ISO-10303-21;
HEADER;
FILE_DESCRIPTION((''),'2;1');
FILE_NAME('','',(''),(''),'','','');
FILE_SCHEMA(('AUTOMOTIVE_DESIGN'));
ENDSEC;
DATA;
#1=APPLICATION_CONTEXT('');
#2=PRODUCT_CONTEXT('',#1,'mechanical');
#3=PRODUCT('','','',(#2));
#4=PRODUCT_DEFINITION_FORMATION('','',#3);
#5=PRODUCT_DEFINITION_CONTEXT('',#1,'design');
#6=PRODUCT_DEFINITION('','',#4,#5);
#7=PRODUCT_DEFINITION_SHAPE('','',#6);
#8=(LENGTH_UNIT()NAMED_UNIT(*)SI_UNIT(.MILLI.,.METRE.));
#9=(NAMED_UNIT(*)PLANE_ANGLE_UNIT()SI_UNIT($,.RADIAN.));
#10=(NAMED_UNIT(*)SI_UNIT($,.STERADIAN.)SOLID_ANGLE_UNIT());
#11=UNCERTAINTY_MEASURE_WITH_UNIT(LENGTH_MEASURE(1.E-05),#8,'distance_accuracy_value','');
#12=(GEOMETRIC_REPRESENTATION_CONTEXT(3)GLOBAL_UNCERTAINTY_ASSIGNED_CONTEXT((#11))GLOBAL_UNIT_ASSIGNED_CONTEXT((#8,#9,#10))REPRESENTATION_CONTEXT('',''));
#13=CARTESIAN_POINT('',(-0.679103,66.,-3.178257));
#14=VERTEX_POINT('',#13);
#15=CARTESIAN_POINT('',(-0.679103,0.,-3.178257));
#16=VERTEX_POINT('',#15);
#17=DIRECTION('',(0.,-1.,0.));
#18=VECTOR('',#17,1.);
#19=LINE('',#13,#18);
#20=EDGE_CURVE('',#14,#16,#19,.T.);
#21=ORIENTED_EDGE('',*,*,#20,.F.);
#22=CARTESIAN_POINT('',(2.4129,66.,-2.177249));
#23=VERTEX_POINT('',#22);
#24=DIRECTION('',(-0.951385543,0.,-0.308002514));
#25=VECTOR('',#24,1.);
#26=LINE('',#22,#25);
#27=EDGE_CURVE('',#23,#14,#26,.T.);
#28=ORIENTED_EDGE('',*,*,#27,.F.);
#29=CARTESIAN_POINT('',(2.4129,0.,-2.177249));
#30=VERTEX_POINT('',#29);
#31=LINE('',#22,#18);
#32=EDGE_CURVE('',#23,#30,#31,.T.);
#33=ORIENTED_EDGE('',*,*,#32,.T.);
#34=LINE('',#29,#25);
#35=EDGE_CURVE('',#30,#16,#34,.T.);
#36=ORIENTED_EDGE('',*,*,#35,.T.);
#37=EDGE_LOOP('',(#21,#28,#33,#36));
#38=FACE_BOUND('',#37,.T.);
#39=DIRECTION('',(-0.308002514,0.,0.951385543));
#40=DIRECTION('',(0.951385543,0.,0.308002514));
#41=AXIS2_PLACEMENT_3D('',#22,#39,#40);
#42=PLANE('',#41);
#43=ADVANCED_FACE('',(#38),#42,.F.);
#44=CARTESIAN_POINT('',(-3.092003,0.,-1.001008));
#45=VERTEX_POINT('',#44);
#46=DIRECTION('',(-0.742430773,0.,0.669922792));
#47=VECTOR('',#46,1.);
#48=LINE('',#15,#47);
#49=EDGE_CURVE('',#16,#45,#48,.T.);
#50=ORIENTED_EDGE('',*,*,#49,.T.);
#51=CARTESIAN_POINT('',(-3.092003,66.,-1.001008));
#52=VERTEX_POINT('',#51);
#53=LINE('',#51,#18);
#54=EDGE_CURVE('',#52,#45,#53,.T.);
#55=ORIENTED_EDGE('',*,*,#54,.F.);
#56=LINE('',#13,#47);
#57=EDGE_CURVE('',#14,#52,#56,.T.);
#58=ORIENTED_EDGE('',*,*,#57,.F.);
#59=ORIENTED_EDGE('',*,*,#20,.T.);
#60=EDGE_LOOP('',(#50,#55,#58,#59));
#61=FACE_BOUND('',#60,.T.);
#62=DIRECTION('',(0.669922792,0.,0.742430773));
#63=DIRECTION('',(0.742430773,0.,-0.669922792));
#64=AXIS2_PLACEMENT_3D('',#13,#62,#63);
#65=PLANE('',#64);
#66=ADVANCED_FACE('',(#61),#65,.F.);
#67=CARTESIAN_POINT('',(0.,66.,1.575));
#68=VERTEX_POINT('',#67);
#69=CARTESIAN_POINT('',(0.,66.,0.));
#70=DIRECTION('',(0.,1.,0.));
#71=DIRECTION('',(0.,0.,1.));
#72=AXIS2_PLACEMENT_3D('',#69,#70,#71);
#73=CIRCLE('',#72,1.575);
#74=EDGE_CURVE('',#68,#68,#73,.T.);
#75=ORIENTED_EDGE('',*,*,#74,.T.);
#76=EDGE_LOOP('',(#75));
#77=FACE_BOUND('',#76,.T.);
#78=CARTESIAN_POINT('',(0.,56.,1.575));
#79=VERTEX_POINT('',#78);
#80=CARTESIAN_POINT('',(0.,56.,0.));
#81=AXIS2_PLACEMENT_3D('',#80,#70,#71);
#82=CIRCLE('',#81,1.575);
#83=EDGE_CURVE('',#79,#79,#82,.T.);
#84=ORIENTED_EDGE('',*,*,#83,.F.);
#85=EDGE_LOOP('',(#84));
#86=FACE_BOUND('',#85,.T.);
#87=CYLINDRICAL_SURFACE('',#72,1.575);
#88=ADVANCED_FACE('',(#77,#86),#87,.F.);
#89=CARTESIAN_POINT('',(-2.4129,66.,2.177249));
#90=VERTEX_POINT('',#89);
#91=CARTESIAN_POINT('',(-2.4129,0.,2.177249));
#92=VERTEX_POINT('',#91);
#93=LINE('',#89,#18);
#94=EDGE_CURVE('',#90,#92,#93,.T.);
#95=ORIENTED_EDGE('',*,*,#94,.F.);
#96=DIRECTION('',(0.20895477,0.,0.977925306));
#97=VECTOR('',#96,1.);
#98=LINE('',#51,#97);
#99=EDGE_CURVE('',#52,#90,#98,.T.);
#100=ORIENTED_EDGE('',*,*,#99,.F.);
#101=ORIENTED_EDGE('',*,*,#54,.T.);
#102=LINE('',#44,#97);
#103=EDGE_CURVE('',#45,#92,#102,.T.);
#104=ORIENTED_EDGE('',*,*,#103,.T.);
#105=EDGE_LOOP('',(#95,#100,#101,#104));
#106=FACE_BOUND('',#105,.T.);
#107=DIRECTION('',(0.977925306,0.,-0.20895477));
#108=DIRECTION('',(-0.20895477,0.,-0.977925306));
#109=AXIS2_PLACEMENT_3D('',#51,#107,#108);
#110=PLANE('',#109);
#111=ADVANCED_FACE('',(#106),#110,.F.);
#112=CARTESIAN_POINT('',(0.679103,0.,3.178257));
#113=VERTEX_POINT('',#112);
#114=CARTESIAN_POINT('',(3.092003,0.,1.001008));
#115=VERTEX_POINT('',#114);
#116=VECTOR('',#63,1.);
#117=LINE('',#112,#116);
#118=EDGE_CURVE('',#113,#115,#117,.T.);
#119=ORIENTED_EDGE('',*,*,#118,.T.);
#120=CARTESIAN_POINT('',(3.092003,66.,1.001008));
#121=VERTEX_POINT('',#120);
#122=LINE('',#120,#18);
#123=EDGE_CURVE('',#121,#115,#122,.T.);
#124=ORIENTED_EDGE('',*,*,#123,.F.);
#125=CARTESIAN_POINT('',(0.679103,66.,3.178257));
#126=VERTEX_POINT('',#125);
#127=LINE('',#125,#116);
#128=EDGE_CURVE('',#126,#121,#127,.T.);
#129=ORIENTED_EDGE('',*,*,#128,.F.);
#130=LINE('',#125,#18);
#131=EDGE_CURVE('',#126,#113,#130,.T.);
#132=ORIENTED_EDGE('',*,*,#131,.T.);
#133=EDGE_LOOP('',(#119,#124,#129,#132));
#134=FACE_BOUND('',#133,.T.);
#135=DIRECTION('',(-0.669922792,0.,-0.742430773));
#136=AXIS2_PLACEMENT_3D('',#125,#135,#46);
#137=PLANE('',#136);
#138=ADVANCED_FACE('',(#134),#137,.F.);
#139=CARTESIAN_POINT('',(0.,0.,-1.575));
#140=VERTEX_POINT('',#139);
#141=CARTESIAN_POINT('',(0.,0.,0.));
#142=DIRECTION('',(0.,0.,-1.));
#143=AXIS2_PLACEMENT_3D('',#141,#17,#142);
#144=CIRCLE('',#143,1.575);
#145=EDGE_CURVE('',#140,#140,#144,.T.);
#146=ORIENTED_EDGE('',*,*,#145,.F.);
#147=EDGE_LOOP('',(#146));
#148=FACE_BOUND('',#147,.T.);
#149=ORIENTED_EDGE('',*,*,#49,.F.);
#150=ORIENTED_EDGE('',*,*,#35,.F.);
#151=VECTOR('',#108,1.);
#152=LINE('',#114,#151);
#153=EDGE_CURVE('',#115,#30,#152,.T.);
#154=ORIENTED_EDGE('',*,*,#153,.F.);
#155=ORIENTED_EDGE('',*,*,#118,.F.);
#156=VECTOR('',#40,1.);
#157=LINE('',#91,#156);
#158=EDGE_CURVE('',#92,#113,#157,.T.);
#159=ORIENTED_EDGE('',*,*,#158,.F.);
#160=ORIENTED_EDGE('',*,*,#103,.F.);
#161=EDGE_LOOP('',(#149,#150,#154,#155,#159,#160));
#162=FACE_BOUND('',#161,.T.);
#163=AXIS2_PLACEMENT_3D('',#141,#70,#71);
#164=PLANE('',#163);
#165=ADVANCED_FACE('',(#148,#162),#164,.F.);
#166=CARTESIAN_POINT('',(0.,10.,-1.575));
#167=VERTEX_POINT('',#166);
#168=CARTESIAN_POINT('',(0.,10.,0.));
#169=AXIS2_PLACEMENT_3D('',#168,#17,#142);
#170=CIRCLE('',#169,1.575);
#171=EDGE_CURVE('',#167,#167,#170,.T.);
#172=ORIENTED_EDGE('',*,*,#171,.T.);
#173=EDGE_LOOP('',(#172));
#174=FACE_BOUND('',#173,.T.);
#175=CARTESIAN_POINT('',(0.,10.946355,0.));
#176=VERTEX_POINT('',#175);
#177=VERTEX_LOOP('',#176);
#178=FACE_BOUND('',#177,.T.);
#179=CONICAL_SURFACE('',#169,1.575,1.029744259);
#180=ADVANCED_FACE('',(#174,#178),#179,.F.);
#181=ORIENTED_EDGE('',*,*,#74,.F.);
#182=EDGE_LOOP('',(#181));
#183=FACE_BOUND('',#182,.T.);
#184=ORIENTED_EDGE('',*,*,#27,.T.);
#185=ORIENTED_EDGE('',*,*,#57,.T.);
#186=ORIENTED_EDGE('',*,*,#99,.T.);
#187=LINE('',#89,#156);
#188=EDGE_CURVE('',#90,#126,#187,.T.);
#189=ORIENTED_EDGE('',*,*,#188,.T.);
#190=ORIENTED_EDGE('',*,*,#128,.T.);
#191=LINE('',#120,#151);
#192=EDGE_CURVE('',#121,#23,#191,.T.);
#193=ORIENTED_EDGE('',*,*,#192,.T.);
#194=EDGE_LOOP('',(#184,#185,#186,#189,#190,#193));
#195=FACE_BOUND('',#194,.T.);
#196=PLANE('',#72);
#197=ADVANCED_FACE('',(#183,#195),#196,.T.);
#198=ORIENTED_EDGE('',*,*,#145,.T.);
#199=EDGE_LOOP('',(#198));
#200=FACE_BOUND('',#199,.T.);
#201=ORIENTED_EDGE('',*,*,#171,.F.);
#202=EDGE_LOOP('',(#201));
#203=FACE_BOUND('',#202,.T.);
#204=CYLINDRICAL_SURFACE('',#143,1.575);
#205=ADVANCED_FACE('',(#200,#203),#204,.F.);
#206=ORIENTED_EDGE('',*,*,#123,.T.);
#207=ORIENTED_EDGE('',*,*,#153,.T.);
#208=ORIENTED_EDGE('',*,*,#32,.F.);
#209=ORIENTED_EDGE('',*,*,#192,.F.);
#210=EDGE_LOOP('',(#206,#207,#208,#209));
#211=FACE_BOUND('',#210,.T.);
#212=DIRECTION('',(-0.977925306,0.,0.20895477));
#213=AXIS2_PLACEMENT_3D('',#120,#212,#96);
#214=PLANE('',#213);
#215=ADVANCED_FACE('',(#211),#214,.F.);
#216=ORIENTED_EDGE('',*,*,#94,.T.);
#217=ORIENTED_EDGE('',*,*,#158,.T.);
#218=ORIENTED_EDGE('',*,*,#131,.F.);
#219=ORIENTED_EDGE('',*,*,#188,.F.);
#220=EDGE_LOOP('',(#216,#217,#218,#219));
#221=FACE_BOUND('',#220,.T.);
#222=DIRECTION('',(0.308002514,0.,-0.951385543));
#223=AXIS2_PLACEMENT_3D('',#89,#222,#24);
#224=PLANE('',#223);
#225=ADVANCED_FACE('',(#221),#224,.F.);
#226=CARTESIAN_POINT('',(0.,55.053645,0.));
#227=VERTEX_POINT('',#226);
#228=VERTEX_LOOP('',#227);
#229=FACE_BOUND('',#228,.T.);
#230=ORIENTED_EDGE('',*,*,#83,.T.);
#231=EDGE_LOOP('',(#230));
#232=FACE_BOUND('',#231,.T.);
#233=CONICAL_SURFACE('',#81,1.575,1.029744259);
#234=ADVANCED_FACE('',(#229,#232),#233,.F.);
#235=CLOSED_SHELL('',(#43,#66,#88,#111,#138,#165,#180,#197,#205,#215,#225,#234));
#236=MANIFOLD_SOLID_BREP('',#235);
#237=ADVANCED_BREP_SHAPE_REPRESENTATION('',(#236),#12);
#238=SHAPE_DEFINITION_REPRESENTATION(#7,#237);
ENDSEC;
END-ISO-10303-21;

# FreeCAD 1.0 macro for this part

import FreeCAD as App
import Part
import Sketcher
from FreeCAD import Vector


def add_polygon(sketch, points):
    """Adds a closed chain of lines whose ends are joined by coincident constraints."""
    first, n = sketch.GeometryCount, len(points)
    for a, b in zip(points, points[1:] + points[:1]):
        sketch.addGeometry(Part.LineSegment(App.Vector(*a, 0), App.Vector(*b, 0)), False)
    for i in range(n):
        sketch.addConstraint(Sketcher.Constraint("Coincident", first + i, 2, first + (i + 1) % n, 1))

doc = App.newDocument("Part")
body = doc.addObject("PartDesign::Body", "Body")

# Sketch on XZ plane
sketch1 = body.newObject("Sketcher::SketchObject", "Sketch")
sketch1.AttachmentSupport = (doc.getObject("XZ_Plane"), [""])
sketch1.MapMode = "FlatFace"
add_polygon(sketch1, [(3.092003, 1.001008), (2.4129, -2.177249), (-0.679103, -3.178257), (-3.092003, -1.001008), (-2.4129, 2.177249), (0.679103, 3.178257)])  # lines 0-5
sketch1.addConstraint([
    Sketcher.Constraint("Symmetric", 0, 2, 3, 2, -1, 1),
    Sketcher.Constraint("Symmetric", 1, 2, 4, 2, -1, 1),
    Sketcher.Constraint("Symmetric", 2, 2, 5, 2, -1, 1),
    Sketcher.Constraint("Equal", 0, 1),
    Sketcher.Constraint("Equal", 1, 2),
    Sketcher.Constraint("Distance", 0, 3.25),
    Sketcher.Constraint("DistanceX", -1, 1, 0, 2, 2.4129),
    Sketcher.Constraint("DistanceX", 2, 2, 1, 2, 2.4129),
    Sketcher.Constraint("DistanceY", 0, 2, 3, 2, 4.354498),
])
pad1 = body.newObject("PartDesign::Pad", "Pad")
pad1.Profile = sketch1
pad1.Length = 66
pad1.Reversed = True

# Sketch on XZ plane
sketch2 = body.newObject("Sketcher::SketchObject", "Sketch001")
sketch2.AttachmentSupport = (doc.getObject("XZ_Plane"), [""])
sketch2.MapMode = "FlatFace"
sketch2.addGeometry(Part.Circle(Vector(0, 0, 0), Vector(0, 0, 1), 1.575), False)
sketch2.addConstraint([
    Sketcher.Constraint("Coincident", 0, 3, -1, 1),
    Sketcher.Constraint("Diameter", 0, 3.15),
])
doc.recompute()
hole = body.newObject("PartDesign::Hole", "Hole")
hole.Profile = sketch2
hole.ThreadType = "None"
hole.Diameter = 3.15
hole.DepthType = "Dimension"
hole.Depth = 10
hole.DrillPoint = "Angled"
hole.DrillPointAngle = 118

# Sketch on XZ plane
sketch3 = body.newObject("Sketcher::SketchObject", "Sketch002")
sketch3.AttachmentSupport = (doc.getObject("XZ_Plane"), [""])
sketch3.MapMode = "FlatFace"
sketch3.AttachmentOffset = App.Placement(Vector(0, 0, -66), App.Rotation())
sketch3.addGeometry(Part.Circle(Vector(0, 0, 0), Vector(0, 0, 1), 1.575), False)
sketch3.addConstraint([
    Sketcher.Constraint("Coincident", 0, 3, -1, 1),
    Sketcher.Constraint("Diameter", 0, 3.15),
])
doc.recompute()
hole2 = body.newObject("PartDesign::Hole", "Hole001")
hole2.Profile = sketch3
hole2.ThreadType = "None"
hole2.Diameter = 3.15
hole2.DepthType = "Dimension"
hole2.Depth = 10
hole2.DrillPoint = "Angled"
hole2.DrillPointAngle = 118
hole2.Reversed = True

doc.recompute()
